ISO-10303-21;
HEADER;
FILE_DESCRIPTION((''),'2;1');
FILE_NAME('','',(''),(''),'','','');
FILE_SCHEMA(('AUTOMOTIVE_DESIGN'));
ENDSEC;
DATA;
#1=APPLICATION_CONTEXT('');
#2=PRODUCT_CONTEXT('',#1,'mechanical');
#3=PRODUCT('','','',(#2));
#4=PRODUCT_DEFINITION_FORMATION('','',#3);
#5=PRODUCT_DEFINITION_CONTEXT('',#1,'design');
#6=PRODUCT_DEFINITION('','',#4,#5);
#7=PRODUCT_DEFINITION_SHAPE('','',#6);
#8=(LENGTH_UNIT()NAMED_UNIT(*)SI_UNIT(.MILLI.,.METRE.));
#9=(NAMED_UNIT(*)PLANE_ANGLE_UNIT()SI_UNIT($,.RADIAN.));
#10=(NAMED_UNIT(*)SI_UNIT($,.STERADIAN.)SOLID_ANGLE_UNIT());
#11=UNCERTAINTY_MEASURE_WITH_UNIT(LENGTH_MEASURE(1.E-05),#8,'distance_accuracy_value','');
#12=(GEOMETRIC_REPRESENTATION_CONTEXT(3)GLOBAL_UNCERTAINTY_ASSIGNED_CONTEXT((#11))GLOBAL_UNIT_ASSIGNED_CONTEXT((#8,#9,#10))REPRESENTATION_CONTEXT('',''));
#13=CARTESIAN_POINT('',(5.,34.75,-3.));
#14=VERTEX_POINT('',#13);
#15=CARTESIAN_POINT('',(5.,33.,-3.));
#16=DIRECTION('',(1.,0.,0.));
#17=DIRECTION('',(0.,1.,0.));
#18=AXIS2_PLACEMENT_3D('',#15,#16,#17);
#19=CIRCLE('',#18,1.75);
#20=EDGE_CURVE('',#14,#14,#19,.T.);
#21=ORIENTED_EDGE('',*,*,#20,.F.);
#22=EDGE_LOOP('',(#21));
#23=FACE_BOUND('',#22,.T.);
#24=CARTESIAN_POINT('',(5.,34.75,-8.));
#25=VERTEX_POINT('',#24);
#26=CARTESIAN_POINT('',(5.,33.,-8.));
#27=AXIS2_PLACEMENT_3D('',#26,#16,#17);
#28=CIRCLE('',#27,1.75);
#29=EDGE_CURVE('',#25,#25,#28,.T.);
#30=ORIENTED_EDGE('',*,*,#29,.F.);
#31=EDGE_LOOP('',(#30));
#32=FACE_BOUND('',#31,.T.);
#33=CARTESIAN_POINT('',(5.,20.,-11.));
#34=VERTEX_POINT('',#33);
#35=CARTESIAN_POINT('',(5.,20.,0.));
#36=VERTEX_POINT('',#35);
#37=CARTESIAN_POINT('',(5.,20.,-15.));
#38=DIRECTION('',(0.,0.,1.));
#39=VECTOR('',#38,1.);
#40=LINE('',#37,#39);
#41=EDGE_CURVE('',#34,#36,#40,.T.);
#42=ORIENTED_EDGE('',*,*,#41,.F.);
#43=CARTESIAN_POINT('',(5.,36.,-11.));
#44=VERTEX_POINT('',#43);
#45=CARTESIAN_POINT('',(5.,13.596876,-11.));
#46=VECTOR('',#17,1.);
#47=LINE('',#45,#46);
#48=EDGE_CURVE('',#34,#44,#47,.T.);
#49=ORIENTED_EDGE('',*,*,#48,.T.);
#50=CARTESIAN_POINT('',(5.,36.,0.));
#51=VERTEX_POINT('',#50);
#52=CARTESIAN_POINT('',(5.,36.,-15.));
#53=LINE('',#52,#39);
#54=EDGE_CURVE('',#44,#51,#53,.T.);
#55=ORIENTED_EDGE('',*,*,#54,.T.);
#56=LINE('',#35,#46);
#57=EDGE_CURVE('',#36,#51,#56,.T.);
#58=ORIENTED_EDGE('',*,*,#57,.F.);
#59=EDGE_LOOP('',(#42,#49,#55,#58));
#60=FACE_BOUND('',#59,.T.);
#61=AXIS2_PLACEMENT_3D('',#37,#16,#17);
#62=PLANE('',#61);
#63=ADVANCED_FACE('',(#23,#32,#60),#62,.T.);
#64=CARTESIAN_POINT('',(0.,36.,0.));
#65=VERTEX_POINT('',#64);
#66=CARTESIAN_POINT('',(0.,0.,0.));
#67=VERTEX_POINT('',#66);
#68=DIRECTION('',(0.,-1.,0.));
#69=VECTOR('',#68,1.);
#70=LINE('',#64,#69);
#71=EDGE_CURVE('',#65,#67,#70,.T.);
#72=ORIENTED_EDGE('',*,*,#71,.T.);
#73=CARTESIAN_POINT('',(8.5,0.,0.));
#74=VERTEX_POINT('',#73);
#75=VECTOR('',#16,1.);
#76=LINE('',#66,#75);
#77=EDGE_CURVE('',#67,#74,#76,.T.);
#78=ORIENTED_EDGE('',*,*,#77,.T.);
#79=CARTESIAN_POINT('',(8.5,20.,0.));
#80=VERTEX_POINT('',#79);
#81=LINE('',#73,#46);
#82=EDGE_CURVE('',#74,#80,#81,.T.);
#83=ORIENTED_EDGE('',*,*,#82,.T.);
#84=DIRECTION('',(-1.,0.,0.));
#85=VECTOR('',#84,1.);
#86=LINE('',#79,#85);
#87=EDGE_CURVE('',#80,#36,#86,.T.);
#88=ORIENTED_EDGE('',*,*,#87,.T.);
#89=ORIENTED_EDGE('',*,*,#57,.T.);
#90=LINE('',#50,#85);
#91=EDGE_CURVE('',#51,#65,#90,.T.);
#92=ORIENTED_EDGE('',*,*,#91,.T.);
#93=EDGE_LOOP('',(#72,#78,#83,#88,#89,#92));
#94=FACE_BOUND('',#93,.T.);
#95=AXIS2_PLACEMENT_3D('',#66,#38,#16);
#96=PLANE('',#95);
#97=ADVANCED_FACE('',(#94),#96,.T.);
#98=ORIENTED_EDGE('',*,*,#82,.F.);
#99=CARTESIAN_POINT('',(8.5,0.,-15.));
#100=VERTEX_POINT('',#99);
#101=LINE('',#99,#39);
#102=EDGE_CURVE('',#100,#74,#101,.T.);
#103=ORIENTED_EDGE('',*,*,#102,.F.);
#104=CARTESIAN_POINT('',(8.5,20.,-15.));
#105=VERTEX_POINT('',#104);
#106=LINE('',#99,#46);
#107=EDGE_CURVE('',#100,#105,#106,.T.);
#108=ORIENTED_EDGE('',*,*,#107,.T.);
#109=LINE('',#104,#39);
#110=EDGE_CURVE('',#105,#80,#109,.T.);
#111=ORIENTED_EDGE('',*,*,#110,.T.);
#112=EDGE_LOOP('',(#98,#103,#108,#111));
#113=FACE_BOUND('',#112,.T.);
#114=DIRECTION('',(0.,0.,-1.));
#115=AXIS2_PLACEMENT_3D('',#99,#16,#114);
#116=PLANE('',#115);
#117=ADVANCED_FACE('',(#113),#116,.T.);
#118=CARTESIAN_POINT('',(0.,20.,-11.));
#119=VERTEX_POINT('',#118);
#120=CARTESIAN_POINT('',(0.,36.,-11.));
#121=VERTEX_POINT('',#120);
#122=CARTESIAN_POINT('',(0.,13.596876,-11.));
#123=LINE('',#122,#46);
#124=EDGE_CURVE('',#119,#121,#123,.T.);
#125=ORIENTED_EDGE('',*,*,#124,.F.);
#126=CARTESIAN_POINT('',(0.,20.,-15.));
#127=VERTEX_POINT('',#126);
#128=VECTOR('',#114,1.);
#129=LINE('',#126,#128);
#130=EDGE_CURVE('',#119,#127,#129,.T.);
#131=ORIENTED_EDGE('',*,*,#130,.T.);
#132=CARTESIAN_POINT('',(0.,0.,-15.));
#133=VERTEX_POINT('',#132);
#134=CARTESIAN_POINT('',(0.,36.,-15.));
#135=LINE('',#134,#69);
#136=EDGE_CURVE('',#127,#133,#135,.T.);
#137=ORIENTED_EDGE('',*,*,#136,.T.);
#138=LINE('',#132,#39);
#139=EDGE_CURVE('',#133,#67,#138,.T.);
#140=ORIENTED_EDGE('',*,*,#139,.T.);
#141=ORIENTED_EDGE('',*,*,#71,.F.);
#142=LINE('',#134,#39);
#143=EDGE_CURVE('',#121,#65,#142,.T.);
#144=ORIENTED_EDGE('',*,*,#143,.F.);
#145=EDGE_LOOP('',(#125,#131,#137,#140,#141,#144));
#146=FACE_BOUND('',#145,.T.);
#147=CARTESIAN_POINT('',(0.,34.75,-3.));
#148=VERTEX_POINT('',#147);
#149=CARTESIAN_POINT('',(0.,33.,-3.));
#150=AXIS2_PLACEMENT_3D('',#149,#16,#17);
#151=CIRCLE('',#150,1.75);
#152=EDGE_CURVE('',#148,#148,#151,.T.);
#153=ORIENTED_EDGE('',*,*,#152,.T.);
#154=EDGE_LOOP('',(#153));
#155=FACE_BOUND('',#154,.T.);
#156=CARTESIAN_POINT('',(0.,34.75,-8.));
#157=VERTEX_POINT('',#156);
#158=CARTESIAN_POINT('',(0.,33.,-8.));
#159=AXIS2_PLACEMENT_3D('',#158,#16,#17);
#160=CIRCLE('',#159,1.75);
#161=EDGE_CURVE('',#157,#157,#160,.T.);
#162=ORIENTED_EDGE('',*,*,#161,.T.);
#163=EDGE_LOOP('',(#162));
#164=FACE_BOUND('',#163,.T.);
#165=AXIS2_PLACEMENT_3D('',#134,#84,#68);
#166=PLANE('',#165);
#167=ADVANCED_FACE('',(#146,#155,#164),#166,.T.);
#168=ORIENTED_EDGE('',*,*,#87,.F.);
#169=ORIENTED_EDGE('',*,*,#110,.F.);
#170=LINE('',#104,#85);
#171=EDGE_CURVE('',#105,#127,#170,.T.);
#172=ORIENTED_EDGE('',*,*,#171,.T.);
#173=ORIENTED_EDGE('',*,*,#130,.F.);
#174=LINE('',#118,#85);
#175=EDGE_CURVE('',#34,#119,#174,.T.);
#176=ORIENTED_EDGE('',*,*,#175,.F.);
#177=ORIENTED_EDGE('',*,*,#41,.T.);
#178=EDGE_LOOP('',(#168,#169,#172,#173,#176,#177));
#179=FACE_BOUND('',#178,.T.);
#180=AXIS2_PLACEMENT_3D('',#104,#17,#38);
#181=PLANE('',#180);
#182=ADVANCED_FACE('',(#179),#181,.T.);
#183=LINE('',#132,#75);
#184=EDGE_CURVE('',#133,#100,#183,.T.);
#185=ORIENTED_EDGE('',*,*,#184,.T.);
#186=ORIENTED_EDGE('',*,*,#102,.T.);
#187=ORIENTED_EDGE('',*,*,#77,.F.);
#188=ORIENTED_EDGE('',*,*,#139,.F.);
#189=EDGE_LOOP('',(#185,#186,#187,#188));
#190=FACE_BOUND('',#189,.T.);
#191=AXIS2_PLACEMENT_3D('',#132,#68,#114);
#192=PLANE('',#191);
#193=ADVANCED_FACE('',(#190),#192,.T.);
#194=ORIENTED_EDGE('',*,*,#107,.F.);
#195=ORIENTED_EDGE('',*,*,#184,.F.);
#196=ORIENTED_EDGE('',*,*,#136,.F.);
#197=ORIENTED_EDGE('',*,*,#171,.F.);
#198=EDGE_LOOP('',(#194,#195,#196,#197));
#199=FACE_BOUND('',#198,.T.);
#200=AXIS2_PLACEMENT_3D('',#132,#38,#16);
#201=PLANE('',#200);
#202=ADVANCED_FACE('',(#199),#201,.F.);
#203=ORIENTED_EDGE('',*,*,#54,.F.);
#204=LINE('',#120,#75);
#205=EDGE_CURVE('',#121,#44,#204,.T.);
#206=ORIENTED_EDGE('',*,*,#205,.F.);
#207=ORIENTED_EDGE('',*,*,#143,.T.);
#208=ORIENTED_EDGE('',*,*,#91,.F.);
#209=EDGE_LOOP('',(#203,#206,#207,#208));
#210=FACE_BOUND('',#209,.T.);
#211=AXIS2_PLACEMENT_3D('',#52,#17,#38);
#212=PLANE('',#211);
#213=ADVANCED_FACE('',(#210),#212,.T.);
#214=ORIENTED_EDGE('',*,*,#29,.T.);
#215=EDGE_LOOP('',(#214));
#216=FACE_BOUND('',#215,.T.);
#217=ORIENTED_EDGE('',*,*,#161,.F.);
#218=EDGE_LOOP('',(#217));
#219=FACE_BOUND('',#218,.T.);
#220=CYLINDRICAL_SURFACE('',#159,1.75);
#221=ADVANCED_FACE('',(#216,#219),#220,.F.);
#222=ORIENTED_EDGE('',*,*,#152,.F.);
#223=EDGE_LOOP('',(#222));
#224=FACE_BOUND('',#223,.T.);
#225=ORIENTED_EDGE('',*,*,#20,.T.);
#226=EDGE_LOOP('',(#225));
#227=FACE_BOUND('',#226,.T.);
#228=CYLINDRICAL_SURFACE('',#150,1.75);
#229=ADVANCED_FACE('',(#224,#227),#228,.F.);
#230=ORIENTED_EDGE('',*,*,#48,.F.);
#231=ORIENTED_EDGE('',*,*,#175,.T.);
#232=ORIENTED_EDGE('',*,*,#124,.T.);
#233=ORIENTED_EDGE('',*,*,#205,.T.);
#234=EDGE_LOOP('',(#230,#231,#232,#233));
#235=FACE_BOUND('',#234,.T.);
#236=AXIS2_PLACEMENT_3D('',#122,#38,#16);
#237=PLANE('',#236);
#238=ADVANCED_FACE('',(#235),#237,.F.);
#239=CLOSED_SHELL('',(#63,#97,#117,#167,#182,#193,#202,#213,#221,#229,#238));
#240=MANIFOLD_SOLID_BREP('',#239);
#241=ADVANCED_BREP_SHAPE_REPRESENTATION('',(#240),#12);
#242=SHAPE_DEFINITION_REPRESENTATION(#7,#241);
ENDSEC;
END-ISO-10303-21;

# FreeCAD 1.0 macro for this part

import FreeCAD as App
import Part
import Sketcher

V = App.Vector
Q = App.Units.Quantity


def add_polygon(sketch, points):
    """Adds a closed chain of lines whose ends are joined by coincident constraints."""
    first, n = sketch.GeometryCount, len(points)
    for a, b in zip(points, points[1:] + points[:1]):
        sketch.addGeometry(Part.LineSegment(App.Vector(*a, 0), App.Vector(*b, 0)), False)
    for i in range(n):
        sketch.addConstraint(Sketcher.Constraint("Coincident", first + i, 2, first + (i + 1) % n, 1))

doc = App.newDocument("Part")
body = doc.addObject("PartDesign::Body", "Body")

# Sketch on XY plane
sketch1 = doc.addObject("Sketcher::SketchObject", "Sketch")
body.addObject(sketch1)
sketch1.AttachmentSupport = (doc.XY_Plane, [""])
sketch1.MapMode = "FlatFace"
add_polygon(sketch1, [(0, 36), (0, 0), (8.5, 0), (8.5, 20), (5, 20), (5, 36)])  # lines 0-5
sketch1.addConstraint([
    Sketcher.Constraint("Vertical", 0),
    Sketcher.Constraint("Horizontal", 1),
    Sketcher.Constraint("Vertical", 2),
    Sketcher.Constraint("Horizontal", 3),
    Sketcher.Constraint("Vertical", 4),
    Sketcher.Constraint("Horizontal", 5),
    Sketcher.Constraint("Coincident", 0, 2, -1, 1),
    Sketcher.Constraint("DistanceX", 5, 2, 5, 1, Q("5 mm")),
    Sketcher.Constraint("DistanceY", 0, 2, 0, 1, Q("36 mm")),
    Sketcher.Constraint("DistanceY", 2, 1, 2, 2, Q("20 mm")),
    Sketcher.Constraint("DistanceX", 1, 1, 1, 2, Q("8.5 mm")),
])
pad1 = doc.addObject("PartDesign::Pad", "Pad")
body.addObject(pad1)
pad1.Profile = sketch1
pad1.Length = 15
pad1.Reversed = True

# Sketch on XZ plane
sketch2 = doc.addObject("Sketcher::SketchObject", "Sketch001")
body.addObject(sketch2)
sketch2.AttachmentSupport = (doc.XZ_Plane, [""])
sketch2.MapMode = "FlatFace"
sketch2.AttachmentOffset = App.Placement(V(0, 0, -36), App.Rotation())
add_polygon(sketch2, [(0, -15), (0, -11), (5, -11), (5, -15)])  # lines 0-3
sketch2.addConstraint([
    Sketcher.Constraint("Vertical", 0),
    Sketcher.Constraint("Horizontal", 1),
    Sketcher.Constraint("Vertical", 2),
    Sketcher.Constraint("Horizontal", 3),
    Sketcher.Constraint("PointOnObject", 0, 2, -2),
    Sketcher.Constraint("DistanceX", 1, 1, 1, 2, Q("5 mm")),
    Sketcher.Constraint("DistanceY", 0, 1, 0, 2, Q("4 mm")),
    Sketcher.Constraint("DistanceY", 0, 2, -1, 1, Q("11 mm")),
])
pocket1 = doc.addObject("PartDesign::Pocket", "Pocket")
body.addObject(pocket1)
pocket1.Profile = sketch2
pocket1.Length = 16
pocket1.Reversed = True

# Sketch on YZ plane
sketch3 = doc.addObject("Sketcher::SketchObject", "Sketch002")
body.addObject(sketch3)
sketch3.AttachmentSupport = (doc.YZ_Plane, [""])
sketch3.MapMode = "FlatFace"
sketch3.AttachmentOffset = App.Placement(V(0, 0, 5), App.Rotation())
sketch3.addGeometry([
    Part.Circle(V(33, -3, 0), V(0, 0, 1), 1.75),
    Part.Circle(V(33, -8, 0), V(0, 0, 1), 1.75),
], False)
sketch3.addConstraint([
    Sketcher.Constraint("Equal", 0, 1),
    Sketcher.Constraint("Vertical", 0, 3, 1, 3),
    Sketcher.Constraint("Diameter", 0, Q("3.5 mm")),
    Sketcher.Constraint("DistanceX", -1, 1, 0, 3, Q("33 mm")),
    Sketcher.Constraint("DistanceY", 0, 3, -1, 1, Q("3 mm")),
    Sketcher.Constraint("DistanceY", 1, 3, -1, 1, Q("8 mm")),
])
pocket2 = doc.addObject("PartDesign::Pocket", "Pocket001")
body.addObject(pocket2)
pocket2.Profile = sketch3
pocket2.Type = "ThroughAll"

doc.recompute()
